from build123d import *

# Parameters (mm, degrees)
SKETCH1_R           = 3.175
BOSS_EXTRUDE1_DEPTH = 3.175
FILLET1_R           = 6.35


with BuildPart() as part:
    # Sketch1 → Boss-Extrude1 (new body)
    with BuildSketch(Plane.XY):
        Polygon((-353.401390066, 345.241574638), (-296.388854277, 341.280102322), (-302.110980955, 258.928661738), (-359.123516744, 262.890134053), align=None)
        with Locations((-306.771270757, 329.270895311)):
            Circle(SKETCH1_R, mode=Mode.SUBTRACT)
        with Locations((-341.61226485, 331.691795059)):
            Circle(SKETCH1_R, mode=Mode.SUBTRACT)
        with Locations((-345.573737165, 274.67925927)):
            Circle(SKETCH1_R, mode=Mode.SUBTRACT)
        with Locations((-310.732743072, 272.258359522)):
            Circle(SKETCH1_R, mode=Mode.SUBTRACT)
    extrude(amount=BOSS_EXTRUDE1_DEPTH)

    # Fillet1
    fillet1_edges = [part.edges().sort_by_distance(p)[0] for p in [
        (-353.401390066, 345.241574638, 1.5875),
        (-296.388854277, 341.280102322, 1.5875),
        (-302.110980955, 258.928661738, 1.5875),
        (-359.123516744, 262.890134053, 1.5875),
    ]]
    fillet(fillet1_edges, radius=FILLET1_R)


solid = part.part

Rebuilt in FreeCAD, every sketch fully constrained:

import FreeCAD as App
import Part
import Sketcher
from FreeCAD import Vector
Q = App.Units.Quantity


def edges_at(feature, points):
    """Names of the edges that pass closest to the given points."""
    edges = feature.Shape.Edges
    near = lambda p: min(range(len(edges)), key=lambda i: edges[i].distToShape(Part.Vertex(*p))[0])
    return sorted({f"Edge{near(p) + 1}" for p in points})


def add_polygon(sketch, points):
    """Adds a closed chain of lines whose ends are joined by coincident constraints."""
    first, n = sketch.GeometryCount, len(points)
    for a, b in zip(points, points[1:] + points[:1]):
        sketch.addGeometry(Part.LineSegment(App.Vector(*a, 0), App.Vector(*b, 0)), False)
    for i in range(n):
        sketch.addConstraint(Sketcher.Constraint("Coincident", first + i, 2, first + (i + 1) % n, 1))

doc = App.newDocument("Part")
body = doc.addObject("PartDesign::Body", "Body")

# Sketch on XY plane
sketch1 = body.newObject("Sketcher::SketchObject", "Sketch")
sketch1.AttachmentSupport = (doc.getObject("XY_Plane"), [""])
sketch1.MapMode = "FlatFace"
add_polygon(sketch1, [(-296.4, 341.3), (-353.4, 345.2), (-359.1, 262.9), (-302.1, 258.9)])  # lines 0-3
sketch1.addGeometry(Part.Circle(Vector(-310.7, 272.3, 0), Vector(0, 0, 1), 3.2), False)  # 4
sketch1.addGeometry(Part.Circle(Vector(-345.6, 274.7, 0), Vector(0, 0, 1), 3.2), False)  # 5
sketch1.addGeometry(Part.Circle(Vector(-306.8, 329.3, 0), Vector(0, 0, 1), 3.2), False)  # 6
sketch1.addGeometry(Part.Circle(Vector(-341.6, 331.7, 0), Vector(0, 0, 1), 3.2), False)  # 7
sketch1.addConstraint([
    Sketcher.Constraint("Equal", 4, 5),
    Sketcher.Constraint("Equal", 5, 6),
    Sketcher.Constraint("Equal", 6, 7),
    Sketcher.Constraint("Perpendicular", 0, 1),
    Sketcher.Constraint("Perpendicular", 1, 2),
    Sketcher.Constraint("Perpendicular", 2, 3),
    Sketcher.Constraint("Diameter", 4, Q("0.25 in")),
    Sketcher.Constraint("Distance", 0, Q("2.25 in")),
    Sketcher.Constraint("Distance", 1, Q("3.25 in")),
    Sketcher.Constraint("DistanceY", 4, 3, 5, 3, 2.4209),
    Sketcher.Constraint("DistanceY", 6, 3, 7, 3, 2.4209),
    Sketcher.Constraint("DistanceY", -1, 1, 4, 3, 272.25836),
    Sketcher.Constraint("DistanceX", 6, 3, -1, 1, 306.771271),
    Sketcher.Constraint("DistanceX", 0, 2, -1, 1, 353.40139),
    Sketcher.Constraint("DistanceX", 2, 2, -1, 1, 302.110981),
    Sketcher.Constraint("DistanceY", -1, 1, 2, 2, 258.928662),
    Sketcher.Constraint("DistanceX", 7, 3, 4, 3, 30.879522),
    Sketcher.Constraint("DistanceY", 7, 3, 0, 2, 13.54978),
    Sketcher.Constraint("DistanceX", 1, 2, 5, 3, 13.54978),
    Sketcher.Constraint("DistanceX", 1, 2, 7, 3, 17.511252),
])
pad1 = body.newObject("PartDesign::Pad", "Pad")
pad1.Profile = sketch1
pad1.Length = Q("0.125 in")
doc.recompute()

fillet = body.newObject("PartDesign::Fillet", "Fillet")
fillet.Base = (pad1, edges_at(pad1, [
    (-353.401, 345.242, 1.587),
    (-296.389, 341.28, 1.587),
    (-302.111, 258.929, 1.587),
    (-359.124, 262.89, 1.587),
]))
fillet.Radius = Q("0.25 in")

doc.recompute()
